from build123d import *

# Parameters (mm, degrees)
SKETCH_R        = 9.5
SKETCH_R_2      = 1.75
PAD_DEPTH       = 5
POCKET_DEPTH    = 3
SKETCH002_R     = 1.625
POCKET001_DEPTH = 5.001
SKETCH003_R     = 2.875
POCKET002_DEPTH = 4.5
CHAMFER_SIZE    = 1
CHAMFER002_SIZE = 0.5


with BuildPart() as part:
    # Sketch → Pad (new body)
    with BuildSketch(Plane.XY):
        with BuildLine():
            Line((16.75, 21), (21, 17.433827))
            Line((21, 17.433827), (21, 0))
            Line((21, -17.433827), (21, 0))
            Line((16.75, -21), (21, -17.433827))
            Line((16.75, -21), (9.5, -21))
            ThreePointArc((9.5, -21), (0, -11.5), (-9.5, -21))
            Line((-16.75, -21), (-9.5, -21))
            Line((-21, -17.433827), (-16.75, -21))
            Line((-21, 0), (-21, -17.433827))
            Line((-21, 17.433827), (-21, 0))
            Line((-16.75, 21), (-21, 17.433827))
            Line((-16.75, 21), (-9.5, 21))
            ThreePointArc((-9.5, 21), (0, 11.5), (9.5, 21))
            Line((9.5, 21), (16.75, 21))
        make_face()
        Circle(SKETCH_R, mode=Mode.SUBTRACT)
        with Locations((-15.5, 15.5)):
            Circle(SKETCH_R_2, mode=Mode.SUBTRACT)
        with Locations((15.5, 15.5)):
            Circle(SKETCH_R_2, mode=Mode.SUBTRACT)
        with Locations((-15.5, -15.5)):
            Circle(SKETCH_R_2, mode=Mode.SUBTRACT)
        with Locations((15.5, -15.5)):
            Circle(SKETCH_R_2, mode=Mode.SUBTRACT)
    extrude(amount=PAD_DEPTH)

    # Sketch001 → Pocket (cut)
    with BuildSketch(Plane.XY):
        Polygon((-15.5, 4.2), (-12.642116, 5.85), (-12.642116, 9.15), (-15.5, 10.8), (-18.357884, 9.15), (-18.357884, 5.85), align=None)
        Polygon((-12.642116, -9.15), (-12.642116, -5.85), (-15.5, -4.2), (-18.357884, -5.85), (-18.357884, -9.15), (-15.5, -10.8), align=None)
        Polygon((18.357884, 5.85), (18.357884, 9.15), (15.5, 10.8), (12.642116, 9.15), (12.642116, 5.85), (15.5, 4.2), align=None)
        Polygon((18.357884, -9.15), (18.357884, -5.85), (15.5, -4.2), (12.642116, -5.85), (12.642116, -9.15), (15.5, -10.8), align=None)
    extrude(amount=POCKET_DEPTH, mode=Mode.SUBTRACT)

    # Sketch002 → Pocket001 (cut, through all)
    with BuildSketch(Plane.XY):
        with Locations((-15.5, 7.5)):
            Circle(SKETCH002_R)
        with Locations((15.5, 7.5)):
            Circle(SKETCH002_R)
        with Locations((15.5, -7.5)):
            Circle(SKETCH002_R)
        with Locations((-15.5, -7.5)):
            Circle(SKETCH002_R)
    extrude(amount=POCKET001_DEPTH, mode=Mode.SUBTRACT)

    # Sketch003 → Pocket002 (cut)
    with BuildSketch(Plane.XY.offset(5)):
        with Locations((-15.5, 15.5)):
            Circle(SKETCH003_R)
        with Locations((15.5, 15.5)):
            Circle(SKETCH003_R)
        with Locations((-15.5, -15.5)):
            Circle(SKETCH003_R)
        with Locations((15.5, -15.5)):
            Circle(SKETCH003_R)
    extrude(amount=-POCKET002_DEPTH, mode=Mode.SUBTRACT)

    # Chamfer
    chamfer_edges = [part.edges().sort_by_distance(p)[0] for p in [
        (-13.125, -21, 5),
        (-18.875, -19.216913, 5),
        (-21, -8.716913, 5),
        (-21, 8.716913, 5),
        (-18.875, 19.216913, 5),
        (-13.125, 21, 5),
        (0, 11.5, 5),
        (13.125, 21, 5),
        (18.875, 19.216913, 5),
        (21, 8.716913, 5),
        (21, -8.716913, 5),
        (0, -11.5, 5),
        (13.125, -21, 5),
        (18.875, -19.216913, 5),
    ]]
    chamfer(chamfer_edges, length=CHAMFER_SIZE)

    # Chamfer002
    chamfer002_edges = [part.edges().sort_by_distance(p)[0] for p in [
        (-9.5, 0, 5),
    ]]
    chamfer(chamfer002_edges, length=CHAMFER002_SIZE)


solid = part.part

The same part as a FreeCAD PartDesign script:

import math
import FreeCAD as App
import Part
import Sketcher
from FreeCAD import Vector
Q = App.Units.Quantity


def edges_at(feature, points):
    """Names of the edges that pass closest to the given points."""
    edges = feature.Shape.Edges
    near = lambda p: min(range(len(edges)), key=lambda i: edges[i].distToShape(Part.Vertex(*p))[0])
    return sorted({f"Edge{near(p) + 1}" for p in points})

doc = App.newDocument("Part")
body = doc.addObject("PartDesign::Body", "Body")

sketch1 = body.newObject("Sketcher::SketchObject", "Sketch")
sketch1.AttachmentSupport = (doc.getObject("XY_Plane"), [""])
sketch1.MapMode = "FlatFace"
sketch1.addGeometry(Part.LineSegment(Vector(21, 17.4, 0), Vector(16.8, 21, 0)), False)
sketch1.addGeometry(Part.LineSegment(Vector(16.8, 21, 0), Vector(9.5, 21, 0)), False)
sketch1.addGeometry(Part.ArcOfCircle(Part.Circle(Vector(0, 21, 0), Vector(0, 0, 1), 9.5), math.radians(180), math.radians(360)), False)
sketch1.addGeometry(Part.LineSegment(Vector(-9.5, 21, 0), Vector(-16.8, 21, 0)), False)
sketch1.addGeometry(Part.LineSegment(Vector(-16.8, 21, 0), Vector(-21, 17.4, 0)), False)
sketch1.addGeometry(Part.LineSegment(Vector(-21, 17.4, 0), Vector(-21, -17.4, 0)), False)
sketch1.addGeometry(Part.LineSegment(Vector(-21, -17.4, 0), Vector(-16.8, -21, 0)), False)
sketch1.addGeometry(Part.LineSegment(Vector(-16.8, -21, 0), Vector(-9.5, -21, 0)), False)
sketch1.addGeometry(Part.ArcOfCircle(Part.Circle(Vector(0, -21, 0), Vector(0, 0, 1), 9.5), math.radians(0), math.radians(180)), False)
sketch1.addGeometry(Part.LineSegment(Vector(9.5, -21, 0), Vector(16.8, -21, 0)), False)
sketch1.addGeometry(Part.LineSegment(Vector(16.8, -21, 0), Vector(21, -17.4, 0)), False)
sketch1.addGeometry(Part.LineSegment(Vector(21, -17.4, 0), Vector(21, 17.4, 0)), False)
sketch1.addGeometry(Part.Circle(Vector(15.5, -15.5, 0), Vector(0, 0, 1), 1.8), False)
sketch1.addGeometry(Part.Circle(Vector(-15.5, -15.5, 0), Vector(0, 0, 1), 1.8), False)
sketch1.addGeometry(Part.Circle(Vector(15.5, 15.5, 0), Vector(0, 0, 1), 1.8), False)
sketch1.addGeometry(Part.Circle(Vector(0, 0, 0), Vector(0, 0, 1), 9.5), False)
sketch1.addGeometry(Part.Circle(Vector(-15.5, 15.5, 0), Vector(0, 0, 1), 1.8), False)
sketch1.addConstraint(Sketcher.Constraint("Coincident", 0, 2, 1, 1))
sketch1.addConstraint(Sketcher.Constraint("Coincident", 1, 2, 2, 2))
sketch1.addConstraint(Sketcher.Constraint("Coincident", 2, 1, 3, 1))
sketch1.addConstraint(Sketcher.Constraint("Coincident", 3, 2, 4, 1))
sketch1.addConstraint(Sketcher.Constraint("Coincident", 4, 2, 5, 1))
sketch1.addConstraint(Sketcher.Constraint("Coincident", 5, 2, 6, 1))
sketch1.addConstraint(Sketcher.Constraint("Coincident", 6, 2, 7, 1))
sketch1.addConstraint(Sketcher.Constraint("Coincident", 7, 2, 8, 2))
sketch1.addConstraint(Sketcher.Constraint("Coincident", 8, 1, 9, 1))
sketch1.addConstraint(Sketcher.Constraint("Coincident", 9, 2, 10, 1))
sketch1.addConstraint(Sketcher.Constraint("Coincident", 10, 2, 11, 1))
sketch1.addConstraint(Sketcher.Constraint("Coincident", 11, 2, 0, 1))
sketch1.addConstraint(Sketcher.Constraint("Horizontal", 1))
sketch1.addConstraint(Sketcher.Constraint("Horizontal", 3))
sketch1.addConstraint(Sketcher.Constraint("Vertical", 5))
sketch1.addConstraint(Sketcher.Constraint("Horizontal", 7))
sketch1.addConstraint(Sketcher.Constraint("Horizontal", 9))
sketch1.addConstraint(Sketcher.Constraint("Vertical", 11))
sketch1.addConstraint(Sketcher.Constraint("Coincident", 15, 3, -1, 1))
sketch1.addConstraint(Sketcher.Constraint("Equal", 2, 8))
sketch1.addConstraint(Sketcher.Constraint("Equal", 12, 13))
sketch1.addConstraint(Sketcher.Constraint("Equal", 13, 14))
sketch1.addConstraint(Sketcher.Constraint("Equal", 8, 15))
sketch1.addConstraint(Sketcher.Constraint("Equal", 14, 16))
sketch1.addConstraint(Sketcher.Constraint("Symmetric", 2, 3, 8, 3, -1, 1))
sketch1.addConstraint(Sketcher.Constraint("Symmetric", 13, 3, 14, 3, -1, 1))
sketch1.addConstraint(Sketcher.Constraint("Symmetric", 12, 3, 16, 3, -1, 1))
sketch1.addConstraint(Sketcher.Constraint("Symmetric", 0, 2, 6, 2, -1, 1))
sketch1.addConstraint(Sketcher.Constraint("Symmetric", 3, 2, 9, 2, -1, 1))
sketch1.addConstraint(Sketcher.Constraint("Symmetric", 4, 2, 10, 2, -1, 1))
sketch1.addConstraint(Sketcher.Constraint("Symmetric", 12, 3, 13, 3, -2))
sketch1.addConstraint(Sketcher.Constraint("Symmetric", 1, 2, 2, 1, -2))
sketch1.addConstraint(Sketcher.Constraint("Parallel", 0, 6))
sketch1.addConstraint(Sketcher.Constraint("Horizontal", 2, 3, 0, 2))
sketch1.addConstraint(Sketcher.Constraint("Horizontal", 5, 2, 10, 2))
sketch1.addConstraint(Sketcher.Constraint("Vertical", 3, 2, 6, 2))
sketch1.addConstraint(Sketcher.Constraint("Diameter", 15, Q("19 mm")))
sketch1.addConstraint(Sketcher.Constraint("Diameter", 12, Q("3.5 mm")))
sketch1.addConstraint(Sketcher.Constraint("Angle", 0, Q("140.000003 deg")))
sketch1.addConstraint(Sketcher.Constraint("DistanceY", -1, 1, 2, 3, Q("21 mm")))
sketch1.addConstraint(Sketcher.Constraint("DistanceX", 4, 2, -1, 1, Q("21 mm")))
sketch1.addConstraint(Sketcher.Constraint("DistanceX", 13, 3, 12, 3, Q("31 mm")))
sketch1.addConstraint(Sketcher.Constraint("DistanceY", 12, 3, 14, 3, Q("31 mm")))
sketch1.addConstraint(Sketcher.Constraint("DistanceX", 1, 2, 1, 1, Q("7.25 mm")))
pad1 = body.newObject("PartDesign::Pad", "Pad")
pad1.Profile = sketch1
pad1.Length = 5

sketch2 = body.newObject("Sketcher::SketchObject", "Sketch001")
sketch2.AttachmentSupport = (doc.getObject("XY_Plane"), [""])
sketch2.MapMode = "FlatFace"
sketch2.addGeometry(Part.LineSegment(Vector(-15.5, 4.2, 0), Vector(-12.6, 5.8, 0)), False)
sketch2.addGeometry(Part.LineSegment(Vector(-12.6, 5.8, 0), Vector(-12.6, 9.2, 0)), False)
sketch2.addGeometry(Part.LineSegment(Vector(-12.6, 9.2, 0), Vector(-15.5, 10.8, 0)), False)
sketch2.addGeometry(Part.LineSegment(Vector(-15.5, 10.8, 0), Vector(-18.4, 9.2, 0)), False)
sketch2.addGeometry(Part.LineSegment(Vector(-18.4, 9.2, 0), Vector(-18.4, 5.8, 0)), False)
sketch2.addGeometry(Part.LineSegment(Vector(-18.4, 5.8, 0), Vector(-15.5, 4.2, 0)), False)
sketch2.addGeometry(Part.LineSegment(Vector(-12.6, -9.2, 0), Vector(-12.6, -5.8, 0)), False)
sketch2.addGeometry(Part.LineSegment(Vector(-12.6, -5.8, 0), Vector(-15.5, -4.2, 0)), False)
sketch2.addGeometry(Part.LineSegment(Vector(-15.5, -4.2, 0), Vector(-18.4, -5.8, 0)), False)
sketch2.addGeometry(Part.LineSegment(Vector(-18.4, -5.8, 0), Vector(-18.4, -9.2, 0)), False)
sketch2.addGeometry(Part.LineSegment(Vector(-18.4, -9.2, 0), Vector(-15.5, -10.8, 0)), False)
sketch2.addGeometry(Part.LineSegment(Vector(-15.5, -10.8, 0), Vector(-12.6, -9.2, 0)), False)
sketch2.addGeometry(Part.LineSegment(Vector(18.4, 5.8, 0), Vector(18.4, 9.2, 0)), False)
sketch2.addGeometry(Part.LineSegment(Vector(18.4, 9.2, 0), Vector(15.5, 10.8, 0)), False)
sketch2.addGeometry(Part.LineSegment(Vector(15.5, 10.8, 0), Vector(12.6, 9.2, 0)), False)
sketch2.addGeometry(Part.LineSegment(Vector(12.6, 9.2, 0), Vector(12.6, 5.8, 0)), False)
sketch2.addGeometry(Part.LineSegment(Vector(12.6, 5.8, 0), Vector(15.5, 4.2, 0)), False)
sketch2.addGeometry(Part.LineSegment(Vector(15.5, 4.2, 0), Vector(18.4, 5.8, 0)), False)
sketch2.addGeometry(Part.LineSegment(Vector(18.4, -9.2, 0), Vector(18.4, -5.8, 0)), False)
sketch2.addGeometry(Part.LineSegment(Vector(18.4, -5.8, 0), Vector(15.5, -4.2, 0)), False)
sketch2.addGeometry(Part.LineSegment(Vector(15.5, -4.2, 0), Vector(12.6, -5.8, 0)), False)
sketch2.addGeometry(Part.LineSegment(Vector(12.6, -5.8, 0), Vector(12.6, -9.2, 0)), False)
sketch2.addGeometry(Part.LineSegment(Vector(12.6, -9.2, 0), Vector(15.5, -10.8, 0)), False)
sketch2.addGeometry(Part.LineSegment(Vector(15.5, -10.8, 0), Vector(18.4, -9.2, 0)), False)
sketch2.addConstraint(Sketcher.Constraint("Coincident", 0, 2, 1, 1))
sketch2.addConstraint(Sketcher.Constraint("Coincident", 1, 2, 2, 1))
sketch2.addConstraint(Sketcher.Constraint("Coincident", 2, 2, 3, 1))
sketch2.addConstraint(Sketcher.Constraint("Coincident", 3, 2, 4, 1))
sketch2.addConstraint(Sketcher.Constraint("Coincident", 4, 2, 5, 1))
sketch2.addConstraint(Sketcher.Constraint("Coincident", 5, 2, 0, 1))
sketch2.addConstraint(Sketcher.Constraint("Coincident", 6, 2, 7, 1))
sketch2.addConstraint(Sketcher.Constraint("Coincident", 7, 2, 8, 1))
sketch2.addConstraint(Sketcher.Constraint("Coincident", 8, 2, 9, 1))
sketch2.addConstraint(Sketcher.Constraint("Coincident", 9, 2, 10, 1))
sketch2.addConstraint(Sketcher.Constraint("Coincident", 10, 2, 11, 1))
sketch2.addConstraint(Sketcher.Constraint("Coincident", 11, 2, 6, 1))
sketch2.addConstraint(Sketcher.Constraint("Coincident", 12, 2, 13, 1))
sketch2.addConstraint(Sketcher.Constraint("Coincident", 13, 2, 14, 1))
sketch2.addConstraint(Sketcher.Constraint("Coincident", 14, 2, 15, 1))
sketch2.addConstraint(Sketcher.Constraint("Coincident", 15, 2, 16, 1))
sketch2.addConstraint(Sketcher.Constraint("Coincident", 16, 2, 17, 1))
sketch2.addConstraint(Sketcher.Constraint("Coincident", 17, 2, 12, 1))
sketch2.addConstraint(Sketcher.Constraint("Coincident", 18, 2, 19, 1))
sketch2.addConstraint(Sketcher.Constraint("Coincident", 19, 2, 20, 1))
sketch2.addConstraint(Sketcher.Constraint("Coincident", 20, 2, 21, 1))
sketch2.addConstraint(Sketcher.Constraint("Coincident", 21, 2, 22, 1))
sketch2.addConstraint(Sketcher.Constraint("Coincident", 22, 2, 23, 1))
sketch2.addConstraint(Sketcher.Constraint("Coincident", 23, 2, 18, 1))
sketch2.addConstraint(Sketcher.Constraint("Vertical", 1))
sketch2.addConstraint(Sketcher.Constraint("Vertical", 4))
sketch2.addConstraint(Sketcher.Constraint("Vertical", 6))
sketch2.addConstraint(Sketcher.Constraint("Vertical", 9))
sketch2.addConstraint(Sketcher.Constraint("Vertical", 12))
sketch2.addConstraint(Sketcher.Constraint("Vertical", 15))
sketch2.addConstraint(Sketcher.Constraint("Vertical", 18))
sketch2.addConstraint(Sketcher.Constraint("Vertical", 21))
sketch2.addConstraint(Sketcher.Constraint("Symmetric", 9, 2, 12, 2, -1, 1))
sketch2.addConstraint(Sketcher.Constraint("Symmetric", 10, 2, 13, 2, -1, 1))
sketch2.addConstraint(Sketcher.Constraint("Symmetric", 11, 2, 14, 2, -1, 1))
sketch2.addConstraint(Sketcher.Constraint("Symmetric", 7, 2, 16, 2, -1, 1))
sketch2.addConstraint(Sketcher.Constraint("Symmetric", 4, 2, 18, 2, -1, 1))
sketch2.addConstraint(Sketcher.Constraint("Symmetric", 5, 2, 19, 2, -1, 1))
sketch2.addConstraint(Sketcher.Constraint("Symmetric", 0, 2, 20, 2, -1, 1))
sketch2.addConstraint(Sketcher.Constraint("Symmetric", 2, 2, 22, 2, -1, 1))
sketch2.addConstraint(Sketcher.Constraint("Symmetric", 3, 2, 12, 2, -2))
sketch2.addConstraint(Sketcher.Constraint("Symmetric", 2, 2, 13, 2, -2))
sketch2.addConstraint(Sketcher.Constraint("Symmetric", 1, 2, 14, 2, -2))
sketch2.addConstraint(Sketcher.Constraint("Symmetric", 5, 2, 16, 2, -2))
sketch2.addConstraint(Sketcher.Constraint("Parallel", 0, 3))
sketch2.addConstraint(Sketcher.Constraint("Parallel", 2, 5))
sketch2.addConstraint(Sketcher.Constraint("Parallel", 5, 7))
sketch2.addConstraint(Sketcher.Constraint("Parallel", 3, 8))
sketch2.addConstraint(Sketcher.Constraint("Parallel", 7, 10))
sketch2.addConstraint(Sketcher.Constraint("Parallel", 13, 16))
sketch2.addConstraint(Sketcher.Constraint("Parallel", 14, 17))
sketch2.addConstraint(Sketcher.Constraint("Parallel", 19, 22))
sketch2.addConstraint(Sketcher.Constraint("Parallel", 20, 23))
sketch2.addConstraint(Sketcher.Constraint("Horizontal", 1, 2, 3, 2))
sketch2.addConstraint(Sketcher.Constraint("Horizontal", 0, 2, 4, 2))
sketch2.addConstraint(Sketcher.Constraint("Angle", 0, Q("29.999999 deg")))
sketch2.addConstraint(Sketcher.Constraint("DistanceY", 1, 1, 1, 2, Q("3.3 mm")))
sketch2.addConstraint(Sketcher.Constraint("DistanceY", 6, 2, 1, 2, Q("15 mm")))
sketch2.addConstraint(Sketcher.Constraint("DistanceX", 1, 2, 12, 2, Q("31 mm")))
sketch2.addConstraint(Sketcher.Constraint("Distance", 0, Q("3.3 mm")))
pocket1 = body.newObject("PartDesign::Pocket", "Pocket")
pocket1.Profile = sketch2
pocket1.Length = 3
pocket1.Reversed = True

sketch3 = body.newObject("Sketcher::SketchObject", "Sketch002")
sketch3.AttachmentSupport = (doc.getObject("XY_Plane"), [""])
sketch3.MapMode = "FlatFace"
sketch3.addGeometry(Part.Circle(Vector(-15.5, 7.5, 0), Vector(0, 0, 1), 1.6), False)
sketch3.addGeometry(Part.Circle(Vector(15.5, 7.5, 0), Vector(0, 0, 1), 1.6), False)
sketch3.addGeometry(Part.Circle(Vector(15.5, -7.5, 0), Vector(0, 0, 1), 1.6), False)
sketch3.addGeometry(Part.Circle(Vector(-15.5, -7.5, 0), Vector(0, 0, 1), 1.6), False)
sketch3.addConstraint(Sketcher.Constraint("Equal", 0, 1))
sketch3.addConstraint(Sketcher.Constraint("Equal", 1, 2))
sketch3.addConstraint(Sketcher.Constraint("Equal", 2, 3))
sketch3.addConstraint(Sketcher.Constraint("Symmetric", 0, 3, 2, 3, -1, 1))
sketch3.addConstraint(Sketcher.Constraint("Symmetric", 1, 3, 3, 3, -1, 1))
sketch3.addConstraint(Sketcher.Constraint("Symmetric", 0, 3, 1, 3, -2))
sketch3.addConstraint(Sketcher.Constraint("Diameter", 0, Q("3.25 mm")))
sketch3.addConstraint(Sketcher.Constraint("DistanceX", 0, 3, 1, 3, Q("31 mm")))
sketch3.addConstraint(Sketcher.Constraint("DistanceY", 2, 3, 1, 3, Q("15 mm")))
pocket2 = body.newObject("PartDesign::Pocket", "Pocket001")
pocket2.Profile = sketch3
pocket2.Type = "ThroughAll"
pocket2.Reversed = True

sketch4 = body.newObject("Sketcher::SketchObject", "Sketch003")
sketch4.AttachmentSupport = (doc.getObject("XY_Plane"), [""])
sketch4.MapMode = "FlatFace"
sketch4.AttachmentOffset = App.Placement(Vector(0, 0, 5), App.Rotation())
sketch4.addGeometry(Part.Circle(Vector(-15.5, 15.5, 0), Vector(0, 0, 1), 2.9), False)
sketch4.addGeometry(Part.Circle(Vector(15.5, 15.5, 0), Vector(0, 0, 1), 2.9), False)
sketch4.addGeometry(Part.Circle(Vector(-15.5, -15.5, 0), Vector(0, 0, 1), 2.9), False)
sketch4.addGeometry(Part.Circle(Vector(15.5, -15.5, 0), Vector(0, 0, 1), 2.9), False)
sketch4.addConstraint(Sketcher.Constraint("Equal", 0, 1))
sketch4.addConstraint(Sketcher.Constraint("Equal", 1, 2))
sketch4.addConstraint(Sketcher.Constraint("Equal", 2, 3))
sketch4.addConstraint(Sketcher.Constraint("Symmetric", 1, 3, 2, 3, -1, 1))
sketch4.addConstraint(Sketcher.Constraint("Symmetric", 0, 3, 3, 3, -1, 1))
sketch4.addConstraint(Sketcher.Constraint("Symmetric", 0, 3, 1, 3, -2))
sketch4.addConstraint(Sketcher.Constraint("Diameter", 0, Q("5.75 mm")))
sketch4.addConstraint(Sketcher.Constraint("DistanceX", 0, 3, 1, 3, Q("31 mm")))
sketch4.addConstraint(Sketcher.Constraint("DistanceY", 2, 3, 0, 3, Q("31 mm")))
pocket3 = body.newObject("PartDesign::Pocket", "Pocket002")
pocket3.Profile = sketch4
pocket3.Length = 4.5
doc.recompute()

chamfer = body.newObject("PartDesign::Chamfer", "Chamfer")
chamfer.Base = (pocket3, edges_at(pocket3, [
    (-13.125, -21, 5),
    (-18.875, -19.217, 5),
    (-21, 0, 5),
    (-21, 0, 5),
    (-18.875, 19.217, 5),
    (-13.125, 21, 5),
    (0, 11.5, 5),
    (13.125, 21, 5),
    (18.875, 19.217, 5),
    (21, 0, 5),
    (21, 0, 5),
    (0, -11.5, 5),
    (13.125, -21, 5),
    (18.875, -19.217, 5),
]))
chamfer.Size = 1
doc.recompute()

chamfer2 = body.newObject("PartDesign::Chamfer", "Chamfer001")
chamfer2.Base = (chamfer, edges_at(chamfer, [(-9.5, 0, 5)]))
chamfer2.Size = 0.5

doc.recompute()
